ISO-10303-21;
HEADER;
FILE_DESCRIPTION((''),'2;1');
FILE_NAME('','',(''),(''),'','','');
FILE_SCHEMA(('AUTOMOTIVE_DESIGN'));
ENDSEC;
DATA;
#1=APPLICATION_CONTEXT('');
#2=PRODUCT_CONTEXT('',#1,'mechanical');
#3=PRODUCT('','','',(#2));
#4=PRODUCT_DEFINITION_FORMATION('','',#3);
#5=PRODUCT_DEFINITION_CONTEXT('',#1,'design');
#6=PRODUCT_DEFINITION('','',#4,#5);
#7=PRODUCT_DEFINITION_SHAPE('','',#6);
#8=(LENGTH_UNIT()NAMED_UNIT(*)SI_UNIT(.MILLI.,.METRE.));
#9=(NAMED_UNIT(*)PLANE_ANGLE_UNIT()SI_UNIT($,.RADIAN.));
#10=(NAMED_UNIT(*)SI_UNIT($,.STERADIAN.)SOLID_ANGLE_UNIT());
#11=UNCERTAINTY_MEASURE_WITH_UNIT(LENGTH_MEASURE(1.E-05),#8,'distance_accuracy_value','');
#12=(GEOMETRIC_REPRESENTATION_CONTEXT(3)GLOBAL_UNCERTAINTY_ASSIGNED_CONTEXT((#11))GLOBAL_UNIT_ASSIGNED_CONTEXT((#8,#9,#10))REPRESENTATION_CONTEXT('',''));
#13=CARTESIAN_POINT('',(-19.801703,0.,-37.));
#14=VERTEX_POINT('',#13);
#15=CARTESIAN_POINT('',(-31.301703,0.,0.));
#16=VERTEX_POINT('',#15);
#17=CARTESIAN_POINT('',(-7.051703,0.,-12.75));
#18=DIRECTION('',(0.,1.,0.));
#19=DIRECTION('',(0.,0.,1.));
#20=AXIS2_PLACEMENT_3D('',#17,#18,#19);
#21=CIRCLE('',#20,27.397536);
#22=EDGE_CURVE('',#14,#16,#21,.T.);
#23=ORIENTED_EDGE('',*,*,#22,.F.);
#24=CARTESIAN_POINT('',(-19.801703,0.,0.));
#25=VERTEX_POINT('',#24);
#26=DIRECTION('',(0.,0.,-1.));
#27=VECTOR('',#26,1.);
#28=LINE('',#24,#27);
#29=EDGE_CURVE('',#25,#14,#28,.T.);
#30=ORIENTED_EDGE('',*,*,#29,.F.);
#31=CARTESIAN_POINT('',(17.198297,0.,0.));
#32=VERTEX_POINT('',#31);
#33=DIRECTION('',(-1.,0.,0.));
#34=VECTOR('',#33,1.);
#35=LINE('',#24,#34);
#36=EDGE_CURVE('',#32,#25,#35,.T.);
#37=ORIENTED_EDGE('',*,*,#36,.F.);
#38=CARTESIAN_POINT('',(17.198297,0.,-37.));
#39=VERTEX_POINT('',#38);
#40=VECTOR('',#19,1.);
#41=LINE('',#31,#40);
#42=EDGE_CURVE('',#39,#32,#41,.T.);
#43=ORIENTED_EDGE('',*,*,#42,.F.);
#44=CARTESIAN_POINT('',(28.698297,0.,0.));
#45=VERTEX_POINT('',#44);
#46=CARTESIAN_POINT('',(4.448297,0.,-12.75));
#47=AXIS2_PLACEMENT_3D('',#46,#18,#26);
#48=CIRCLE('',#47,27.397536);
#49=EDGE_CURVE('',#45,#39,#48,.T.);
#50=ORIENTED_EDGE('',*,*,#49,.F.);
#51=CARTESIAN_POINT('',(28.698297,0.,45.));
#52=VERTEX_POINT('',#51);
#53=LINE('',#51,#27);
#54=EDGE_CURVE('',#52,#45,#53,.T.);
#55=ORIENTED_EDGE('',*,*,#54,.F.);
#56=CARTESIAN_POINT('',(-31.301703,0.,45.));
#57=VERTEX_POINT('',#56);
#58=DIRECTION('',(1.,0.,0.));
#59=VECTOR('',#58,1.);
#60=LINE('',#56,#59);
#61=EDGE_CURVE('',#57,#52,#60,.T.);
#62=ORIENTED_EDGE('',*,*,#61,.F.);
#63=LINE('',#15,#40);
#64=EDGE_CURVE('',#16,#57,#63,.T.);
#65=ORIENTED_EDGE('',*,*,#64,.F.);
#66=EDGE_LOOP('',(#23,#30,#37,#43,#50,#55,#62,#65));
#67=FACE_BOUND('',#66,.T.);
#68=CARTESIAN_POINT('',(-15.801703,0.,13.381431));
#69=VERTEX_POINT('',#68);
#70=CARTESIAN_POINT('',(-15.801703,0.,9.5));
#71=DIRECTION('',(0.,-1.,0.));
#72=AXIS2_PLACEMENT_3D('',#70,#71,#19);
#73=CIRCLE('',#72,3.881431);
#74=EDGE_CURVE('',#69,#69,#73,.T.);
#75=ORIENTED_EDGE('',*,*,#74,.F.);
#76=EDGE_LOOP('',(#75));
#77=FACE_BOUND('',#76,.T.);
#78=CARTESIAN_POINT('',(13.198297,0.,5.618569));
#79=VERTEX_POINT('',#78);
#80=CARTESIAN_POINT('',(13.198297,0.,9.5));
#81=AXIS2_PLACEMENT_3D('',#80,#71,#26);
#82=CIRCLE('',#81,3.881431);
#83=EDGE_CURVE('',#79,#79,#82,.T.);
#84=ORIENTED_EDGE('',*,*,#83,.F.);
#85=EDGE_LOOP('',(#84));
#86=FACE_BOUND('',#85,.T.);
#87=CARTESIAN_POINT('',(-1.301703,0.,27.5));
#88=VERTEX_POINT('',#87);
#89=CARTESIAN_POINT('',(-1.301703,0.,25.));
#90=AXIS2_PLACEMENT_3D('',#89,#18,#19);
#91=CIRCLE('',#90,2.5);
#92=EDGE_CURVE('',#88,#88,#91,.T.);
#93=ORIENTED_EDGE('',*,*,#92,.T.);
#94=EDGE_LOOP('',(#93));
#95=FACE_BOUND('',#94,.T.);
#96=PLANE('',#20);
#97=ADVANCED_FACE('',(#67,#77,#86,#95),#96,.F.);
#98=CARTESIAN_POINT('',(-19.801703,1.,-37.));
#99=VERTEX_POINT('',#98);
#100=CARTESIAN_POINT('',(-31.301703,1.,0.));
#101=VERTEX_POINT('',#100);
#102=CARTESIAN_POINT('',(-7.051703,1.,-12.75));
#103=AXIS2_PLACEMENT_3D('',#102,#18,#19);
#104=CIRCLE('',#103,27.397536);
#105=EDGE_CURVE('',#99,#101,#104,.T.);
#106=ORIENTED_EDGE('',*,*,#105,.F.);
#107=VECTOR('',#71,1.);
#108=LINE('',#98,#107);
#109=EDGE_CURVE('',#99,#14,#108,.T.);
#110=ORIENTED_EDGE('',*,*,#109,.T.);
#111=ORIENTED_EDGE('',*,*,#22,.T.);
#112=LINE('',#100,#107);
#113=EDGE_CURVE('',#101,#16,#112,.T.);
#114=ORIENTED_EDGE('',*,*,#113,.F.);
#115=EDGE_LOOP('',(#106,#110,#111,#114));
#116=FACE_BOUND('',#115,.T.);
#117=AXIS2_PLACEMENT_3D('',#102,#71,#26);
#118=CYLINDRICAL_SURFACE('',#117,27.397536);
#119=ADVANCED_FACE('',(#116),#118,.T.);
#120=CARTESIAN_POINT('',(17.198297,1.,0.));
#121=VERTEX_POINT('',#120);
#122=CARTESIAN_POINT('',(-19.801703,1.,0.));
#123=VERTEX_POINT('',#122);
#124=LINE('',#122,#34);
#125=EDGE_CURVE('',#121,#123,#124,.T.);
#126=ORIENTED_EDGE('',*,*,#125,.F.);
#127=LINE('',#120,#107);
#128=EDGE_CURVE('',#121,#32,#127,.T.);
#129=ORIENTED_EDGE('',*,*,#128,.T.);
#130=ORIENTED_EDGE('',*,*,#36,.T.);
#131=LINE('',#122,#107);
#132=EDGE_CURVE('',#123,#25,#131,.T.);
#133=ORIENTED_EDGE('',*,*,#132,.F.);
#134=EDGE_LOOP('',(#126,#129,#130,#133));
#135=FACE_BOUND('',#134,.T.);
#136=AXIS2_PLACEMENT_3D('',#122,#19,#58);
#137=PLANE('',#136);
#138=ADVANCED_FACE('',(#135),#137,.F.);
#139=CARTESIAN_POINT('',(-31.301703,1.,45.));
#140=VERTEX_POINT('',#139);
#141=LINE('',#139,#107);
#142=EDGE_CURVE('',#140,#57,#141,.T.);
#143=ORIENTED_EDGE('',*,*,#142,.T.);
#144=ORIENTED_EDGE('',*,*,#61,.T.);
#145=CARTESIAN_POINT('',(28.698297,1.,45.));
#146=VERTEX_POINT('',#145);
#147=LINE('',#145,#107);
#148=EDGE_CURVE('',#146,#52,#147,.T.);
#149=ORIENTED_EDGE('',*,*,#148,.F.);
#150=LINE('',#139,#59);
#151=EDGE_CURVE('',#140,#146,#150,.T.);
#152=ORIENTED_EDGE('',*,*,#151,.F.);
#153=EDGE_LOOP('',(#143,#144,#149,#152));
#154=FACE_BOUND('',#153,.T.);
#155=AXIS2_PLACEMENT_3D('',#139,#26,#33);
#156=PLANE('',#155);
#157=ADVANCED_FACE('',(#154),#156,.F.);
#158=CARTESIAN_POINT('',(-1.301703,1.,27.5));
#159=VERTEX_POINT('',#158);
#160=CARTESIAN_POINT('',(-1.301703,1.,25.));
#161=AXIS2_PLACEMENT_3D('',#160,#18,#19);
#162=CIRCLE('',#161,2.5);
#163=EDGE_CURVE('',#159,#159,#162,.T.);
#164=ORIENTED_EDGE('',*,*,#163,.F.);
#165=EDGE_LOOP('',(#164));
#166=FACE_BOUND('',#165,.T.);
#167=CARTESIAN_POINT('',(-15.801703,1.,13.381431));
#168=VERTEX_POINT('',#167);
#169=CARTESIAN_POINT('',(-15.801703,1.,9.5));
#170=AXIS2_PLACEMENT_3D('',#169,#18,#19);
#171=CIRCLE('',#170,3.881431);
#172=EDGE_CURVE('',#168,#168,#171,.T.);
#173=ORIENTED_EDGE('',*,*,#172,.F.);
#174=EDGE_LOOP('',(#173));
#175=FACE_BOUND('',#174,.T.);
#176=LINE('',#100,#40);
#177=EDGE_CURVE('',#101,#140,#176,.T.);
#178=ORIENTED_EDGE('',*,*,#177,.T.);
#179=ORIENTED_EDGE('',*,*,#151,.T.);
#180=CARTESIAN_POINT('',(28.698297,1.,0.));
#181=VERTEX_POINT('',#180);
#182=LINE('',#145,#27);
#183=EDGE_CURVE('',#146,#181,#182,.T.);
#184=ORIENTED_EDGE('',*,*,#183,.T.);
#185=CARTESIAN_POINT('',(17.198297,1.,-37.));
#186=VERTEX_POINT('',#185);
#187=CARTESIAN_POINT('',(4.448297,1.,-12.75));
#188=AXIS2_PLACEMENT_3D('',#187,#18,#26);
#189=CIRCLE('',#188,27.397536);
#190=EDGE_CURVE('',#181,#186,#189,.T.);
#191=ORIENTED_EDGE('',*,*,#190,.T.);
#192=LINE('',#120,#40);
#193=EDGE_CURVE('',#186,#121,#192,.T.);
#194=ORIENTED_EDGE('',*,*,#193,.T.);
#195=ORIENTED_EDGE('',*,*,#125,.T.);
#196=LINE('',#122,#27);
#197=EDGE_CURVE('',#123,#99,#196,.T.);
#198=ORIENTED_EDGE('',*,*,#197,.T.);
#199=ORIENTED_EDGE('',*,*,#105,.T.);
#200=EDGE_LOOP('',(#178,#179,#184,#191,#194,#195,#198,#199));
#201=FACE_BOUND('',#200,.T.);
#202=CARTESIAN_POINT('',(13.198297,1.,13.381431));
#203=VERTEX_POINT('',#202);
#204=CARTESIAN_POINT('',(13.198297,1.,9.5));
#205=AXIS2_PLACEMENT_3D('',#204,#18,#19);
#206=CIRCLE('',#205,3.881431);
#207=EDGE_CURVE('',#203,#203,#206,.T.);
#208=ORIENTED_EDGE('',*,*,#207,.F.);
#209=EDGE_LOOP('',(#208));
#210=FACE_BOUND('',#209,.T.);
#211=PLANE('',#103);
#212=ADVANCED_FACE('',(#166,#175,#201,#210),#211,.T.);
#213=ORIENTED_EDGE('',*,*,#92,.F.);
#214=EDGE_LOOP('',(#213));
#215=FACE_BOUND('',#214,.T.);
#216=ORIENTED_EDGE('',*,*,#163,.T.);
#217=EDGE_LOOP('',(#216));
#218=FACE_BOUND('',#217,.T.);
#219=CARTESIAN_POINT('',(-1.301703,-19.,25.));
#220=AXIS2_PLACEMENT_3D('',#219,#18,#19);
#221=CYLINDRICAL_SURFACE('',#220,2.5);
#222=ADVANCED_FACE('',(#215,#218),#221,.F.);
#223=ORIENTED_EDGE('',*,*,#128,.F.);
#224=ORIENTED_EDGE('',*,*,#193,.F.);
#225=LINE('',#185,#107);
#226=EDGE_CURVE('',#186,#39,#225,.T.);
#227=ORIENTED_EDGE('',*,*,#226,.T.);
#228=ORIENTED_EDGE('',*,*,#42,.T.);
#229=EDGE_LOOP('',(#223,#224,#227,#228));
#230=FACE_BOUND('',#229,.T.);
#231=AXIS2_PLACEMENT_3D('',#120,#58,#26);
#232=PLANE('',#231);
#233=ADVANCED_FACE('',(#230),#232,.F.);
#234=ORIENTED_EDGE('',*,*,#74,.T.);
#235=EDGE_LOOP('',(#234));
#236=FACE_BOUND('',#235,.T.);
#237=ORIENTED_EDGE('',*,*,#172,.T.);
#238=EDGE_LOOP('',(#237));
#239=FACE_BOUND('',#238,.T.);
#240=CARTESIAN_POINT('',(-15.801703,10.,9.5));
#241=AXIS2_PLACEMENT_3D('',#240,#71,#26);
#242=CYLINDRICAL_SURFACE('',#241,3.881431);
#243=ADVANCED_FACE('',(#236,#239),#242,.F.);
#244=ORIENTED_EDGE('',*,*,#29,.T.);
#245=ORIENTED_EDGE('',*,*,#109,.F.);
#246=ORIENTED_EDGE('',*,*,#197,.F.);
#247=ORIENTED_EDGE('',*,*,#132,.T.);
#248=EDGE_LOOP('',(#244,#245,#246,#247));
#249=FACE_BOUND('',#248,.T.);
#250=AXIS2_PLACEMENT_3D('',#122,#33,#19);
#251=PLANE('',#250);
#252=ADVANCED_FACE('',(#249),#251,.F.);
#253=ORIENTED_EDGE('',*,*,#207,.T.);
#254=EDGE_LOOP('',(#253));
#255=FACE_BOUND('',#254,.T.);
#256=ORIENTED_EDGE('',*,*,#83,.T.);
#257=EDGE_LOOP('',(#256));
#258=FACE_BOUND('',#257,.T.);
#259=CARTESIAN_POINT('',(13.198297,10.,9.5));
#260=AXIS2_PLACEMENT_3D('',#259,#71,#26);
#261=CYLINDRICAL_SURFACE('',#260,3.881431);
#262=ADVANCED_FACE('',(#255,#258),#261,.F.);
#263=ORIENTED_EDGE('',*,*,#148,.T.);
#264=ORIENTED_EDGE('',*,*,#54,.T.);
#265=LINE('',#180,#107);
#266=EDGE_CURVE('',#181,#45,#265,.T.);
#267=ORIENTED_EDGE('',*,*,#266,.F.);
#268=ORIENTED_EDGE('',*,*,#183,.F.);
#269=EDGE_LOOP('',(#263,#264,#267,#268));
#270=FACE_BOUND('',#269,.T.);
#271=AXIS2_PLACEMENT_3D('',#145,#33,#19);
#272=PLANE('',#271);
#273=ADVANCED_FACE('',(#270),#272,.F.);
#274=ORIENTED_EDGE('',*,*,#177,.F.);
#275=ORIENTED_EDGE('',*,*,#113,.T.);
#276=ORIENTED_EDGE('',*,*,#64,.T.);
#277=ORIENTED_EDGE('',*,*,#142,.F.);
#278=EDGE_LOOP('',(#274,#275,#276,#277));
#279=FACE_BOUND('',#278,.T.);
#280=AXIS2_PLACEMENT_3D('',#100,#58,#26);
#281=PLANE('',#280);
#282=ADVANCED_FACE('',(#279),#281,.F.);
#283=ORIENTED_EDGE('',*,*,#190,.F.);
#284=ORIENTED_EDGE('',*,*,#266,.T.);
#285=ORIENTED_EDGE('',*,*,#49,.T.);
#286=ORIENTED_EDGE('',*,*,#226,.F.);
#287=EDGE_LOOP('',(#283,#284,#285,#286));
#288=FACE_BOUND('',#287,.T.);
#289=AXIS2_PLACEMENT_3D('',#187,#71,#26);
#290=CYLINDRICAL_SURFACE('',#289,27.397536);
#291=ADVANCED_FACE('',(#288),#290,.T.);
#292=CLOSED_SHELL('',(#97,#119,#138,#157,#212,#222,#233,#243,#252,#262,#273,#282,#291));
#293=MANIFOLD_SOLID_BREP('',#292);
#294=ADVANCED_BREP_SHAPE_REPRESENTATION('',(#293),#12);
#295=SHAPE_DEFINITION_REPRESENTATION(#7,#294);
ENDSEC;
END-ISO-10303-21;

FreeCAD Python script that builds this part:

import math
import FreeCAD as App
import Part
import Sketcher
from FreeCAD import Vector
Q = App.Units.Quantity


def add_polygon(sketch, points):
    """Adds a closed chain of lines whose ends are joined by coincident constraints."""
    first, n = sketch.GeometryCount, len(points)
    for a, b in zip(points, points[1:] + points[:1]):
        sketch.addGeometry(Part.LineSegment(App.Vector(*a, 0), App.Vector(*b, 0)), False)
    for i in range(n):
        sketch.addConstraint(Sketcher.Constraint("Coincident", first + i, 2, first + (i + 1) % n, 1))

doc = App.newDocument("Part")
body = doc.addObject("PartDesign::Body", "Body")

sketch1 = body.newObject("Sketcher::SketchObject", "Sketch")
sketch1.AttachmentSupport = (doc.getObject("XZ_Plane"), [""])
sketch1.MapMode = "FlatFace"
sketch1.addGeometry(Part.LineSegment(Vector(17, 0, 0), Vector(-20, 0, 0)), False)
sketch1.addGeometry(Part.LineSegment(Vector(-20, 0, 0), Vector(-20, -37, 0)), False)
sketch1.addGeometry(Part.ArcOfCircle(Part.Circle(Vector(-7, -13, 0), Vector(0, 0, 1), 27), math.radians(152), math.radians(242)), False)
sketch1.addGeometry(Part.LineSegment(Vector(-31, 0, 0), Vector(-31, 45, 0)), False)
sketch1.addGeometry(Part.LineSegment(Vector(-31, 45, 0), Vector(29, 45, 0)), False)
sketch1.addGeometry(Part.LineSegment(Vector(29, 45, 0), Vector(29, 0, 0)), False)
sketch1.addGeometry(Part.ArcOfCircle(Part.Circle(Vector(4, -13, 0), Vector(0, 0, 1), 27), math.radians(-62), math.radians(28)), False)
sketch1.addGeometry(Part.LineSegment(Vector(17, -37, 0), Vector(17, 0, 0)), False)
sketch1.addConstraint(Sketcher.Constraint("Coincident", 0, 2, 1, 1))
sketch1.addConstraint(Sketcher.Constraint("Coincident", 1, 2, 2, 2))
sketch1.addConstraint(Sketcher.Constraint("Coincident", 2, 1, 3, 1))
sketch1.addConstraint(Sketcher.Constraint("Coincident", 3, 2, 4, 1))
sketch1.addConstraint(Sketcher.Constraint("Coincident", 4, 2, 5, 1))
sketch1.addConstraint(Sketcher.Constraint("Coincident", 5, 2, 6, 2))
sketch1.addConstraint(Sketcher.Constraint("Coincident", 6, 1, 7, 1))
sketch1.addConstraint(Sketcher.Constraint("Coincident", 7, 2, 0, 1))
sketch1.addConstraint(Sketcher.Constraint("Horizontal", 0))
sketch1.addConstraint(Sketcher.Constraint("Vertical", 1))
sketch1.addConstraint(Sketcher.Constraint("Vertical", 3))
sketch1.addConstraint(Sketcher.Constraint("Horizontal", 4))
sketch1.addConstraint(Sketcher.Constraint("Vertical", 5))
sketch1.addConstraint(Sketcher.Constraint("Vertical", 7))
sketch1.addConstraint(Sketcher.Constraint("Equal", 2, 6))
sketch1.addConstraint(Sketcher.Constraint("PointOnObject", 0, 2, -1))
sketch1.addConstraint(Sketcher.Constraint("PointOnObject", 2, 1, -1))
sketch1.addConstraint(Sketcher.Constraint("PointOnObject", 5, 2, -1))
sketch1.addConstraint(Sketcher.Constraint("Horizontal", 2, 3, 6, 3))
sketch1.addConstraint(Sketcher.Constraint("Horizontal", 1, 2, 6, 1))
sketch1.addConstraint(Sketcher.Constraint("Equal", 0, 1))
sketch1.addConstraint(Sketcher.Constraint("DistanceX", 0, 2, 0, 1, Q("37 mm")))
sketch1.addConstraint(Sketcher.Constraint("DistanceX", 4, 1, 4, 2, Q("60 mm")))
sketch1.addConstraint(Sketcher.Constraint("DistanceY", 3, 1, 3, 2, Q("45 mm")))
sketch1.addConstraint(Sketcher.Constraint("DistanceX", 2, 3, 6, 3, Q("11.5 mm")))
sketch1.addConstraint(Sketcher.Constraint("DistanceX", 2, 3, -1, 1, Q("7.051703 mm")))
pad1 = body.newObject("PartDesign::Pad", "Pad")
pad1.Profile = sketch1
pad1.Length = 1
pad1.Reversed = True

sketch2 = body.newObject("Sketcher::SketchObject", "Sketch001")
sketch2.AttachmentSupport = (doc.getObject("XZ_Plane"), [""])
sketch2.MapMode = "FlatFace"
sketch2.AttachmentOffset = App.Placement(Vector(0, 0, -1), App.Rotation())
sketch2.addGeometry(Part.Circle(Vector(-1.3, 25, 0), Vector(0, 0, 1), 2.5), False)
sketch2.addConstraint(Sketcher.Constraint("Diameter", 0, Q("5 mm")))
sketch2.addConstraint(Sketcher.Constraint("DistanceY", -1, 1, 0, 3, Q("25 mm")))
sketch2.addConstraint(Sketcher.Constraint("DistanceX", 0, 3, -1, 1, Q("1.301703 mm")))
pocket1 = body.newObject("PartDesign::Pocket", "Pocket")
pocket1.Profile = sketch2
pocket1.Length = 20
pocket1.Reversed = True

sketch3 = body.newObject("Sketcher::SketchObject", "Sketch002")
sketch3.AttachmentSupport = (doc.getObject("XZ_Plane"), [""])
sketch3.MapMode = "FlatFace"
add_polygon(sketch3, [(11, 12), (11, 7), (16, 7), (16, 12)])
add_polygon(sketch3, [(-18, 12), (-18, 7), (-13, 7), (-13, 12)])
sketch3.addConstraint(Sketcher.Constraint("Vertical", 0))
sketch3.addConstraint(Sketcher.Constraint("Horizontal", 1))
sketch3.addConstraint(Sketcher.Constraint("Vertical", 2))
sketch3.addConstraint(Sketcher.Constraint("Horizontal", 3))
sketch3.addConstraint(Sketcher.Constraint("Vertical", 4))
sketch3.addConstraint(Sketcher.Constraint("Horizontal", 5))
sketch3.addConstraint(Sketcher.Constraint("Vertical", 6))
sketch3.addConstraint(Sketcher.Constraint("Horizontal", 7))
sketch3.addConstraint(Sketcher.Constraint("Horizontal", 1, 2, 4, 2))
sketch3.addConstraint(Sketcher.Constraint("Horizontal", 3, 2, 6, 2))
sketch3.addConstraint(Sketcher.Constraint("Equal", 3, 5))
sketch3.addConstraint(Sketcher.Constraint("Equal", 7, 0))
sketch3.addConstraint(Sketcher.Constraint("DistanceX", 1, 1, 1, 2, Q("5 mm")))
sketch3.addConstraint(Sketcher.Constraint("DistanceY", -1, 1, 0, 2, Q("7 mm")))
sketch3.addConstraint(Sketcher.Constraint("DistanceX", 4, 2, 0, 2, Q("29 mm")))
sketch3.addConstraint(Sketcher.Constraint("DistanceX", -1, 1, 0, 2, Q("10.698297 mm")))
pocket2 = body.newObject("PartDesign::Pocket", "Pocket001")
pocket2.Profile = sketch3
pocket2.Length = 10

sketch4 = body.newObject("Sketcher::SketchObject", "Sketch003")
sketch4.AttachmentSupport = (doc.getObject("XZ_Plane"), [""])
sketch4.MapMode = "FlatFace"
sketch4.addGeometry(Part.Circle(Vector(13.2, 9.5, 0), Vector(0, 0, 1), 3.9), False)
sketch4.addGeometry(Part.Circle(Vector(-15.8, 9.5, 0), Vector(0, 0, 1), 3.9), False)
sketch4.addConstraint(Sketcher.Constraint("Equal", 0, 1))
sketch4.addConstraint(Sketcher.Constraint("Horizontal", 0, 3, 1, 3))
sketch4.addConstraint(Sketcher.Constraint("DistanceX", 1, 3, 0, 3, Q("29 mm")))
sketch4.addConstraint(Sketcher.Constraint("DistanceY", -1, 1, 0, 3, Q("9.5 mm")))
sketch4.addConstraint(Sketcher.Constraint("Diameter", 0, Q("7.762862 mm")))
sketch4.addConstraint(Sketcher.Constraint("DistanceX", -1, 1, 0, 3, Q("13.198297 mm")))
pocket3 = body.newObject("PartDesign::Pocket", "Pocket002")
pocket3.Profile = sketch4
pocket3.Length = 10

doc.recompute()
